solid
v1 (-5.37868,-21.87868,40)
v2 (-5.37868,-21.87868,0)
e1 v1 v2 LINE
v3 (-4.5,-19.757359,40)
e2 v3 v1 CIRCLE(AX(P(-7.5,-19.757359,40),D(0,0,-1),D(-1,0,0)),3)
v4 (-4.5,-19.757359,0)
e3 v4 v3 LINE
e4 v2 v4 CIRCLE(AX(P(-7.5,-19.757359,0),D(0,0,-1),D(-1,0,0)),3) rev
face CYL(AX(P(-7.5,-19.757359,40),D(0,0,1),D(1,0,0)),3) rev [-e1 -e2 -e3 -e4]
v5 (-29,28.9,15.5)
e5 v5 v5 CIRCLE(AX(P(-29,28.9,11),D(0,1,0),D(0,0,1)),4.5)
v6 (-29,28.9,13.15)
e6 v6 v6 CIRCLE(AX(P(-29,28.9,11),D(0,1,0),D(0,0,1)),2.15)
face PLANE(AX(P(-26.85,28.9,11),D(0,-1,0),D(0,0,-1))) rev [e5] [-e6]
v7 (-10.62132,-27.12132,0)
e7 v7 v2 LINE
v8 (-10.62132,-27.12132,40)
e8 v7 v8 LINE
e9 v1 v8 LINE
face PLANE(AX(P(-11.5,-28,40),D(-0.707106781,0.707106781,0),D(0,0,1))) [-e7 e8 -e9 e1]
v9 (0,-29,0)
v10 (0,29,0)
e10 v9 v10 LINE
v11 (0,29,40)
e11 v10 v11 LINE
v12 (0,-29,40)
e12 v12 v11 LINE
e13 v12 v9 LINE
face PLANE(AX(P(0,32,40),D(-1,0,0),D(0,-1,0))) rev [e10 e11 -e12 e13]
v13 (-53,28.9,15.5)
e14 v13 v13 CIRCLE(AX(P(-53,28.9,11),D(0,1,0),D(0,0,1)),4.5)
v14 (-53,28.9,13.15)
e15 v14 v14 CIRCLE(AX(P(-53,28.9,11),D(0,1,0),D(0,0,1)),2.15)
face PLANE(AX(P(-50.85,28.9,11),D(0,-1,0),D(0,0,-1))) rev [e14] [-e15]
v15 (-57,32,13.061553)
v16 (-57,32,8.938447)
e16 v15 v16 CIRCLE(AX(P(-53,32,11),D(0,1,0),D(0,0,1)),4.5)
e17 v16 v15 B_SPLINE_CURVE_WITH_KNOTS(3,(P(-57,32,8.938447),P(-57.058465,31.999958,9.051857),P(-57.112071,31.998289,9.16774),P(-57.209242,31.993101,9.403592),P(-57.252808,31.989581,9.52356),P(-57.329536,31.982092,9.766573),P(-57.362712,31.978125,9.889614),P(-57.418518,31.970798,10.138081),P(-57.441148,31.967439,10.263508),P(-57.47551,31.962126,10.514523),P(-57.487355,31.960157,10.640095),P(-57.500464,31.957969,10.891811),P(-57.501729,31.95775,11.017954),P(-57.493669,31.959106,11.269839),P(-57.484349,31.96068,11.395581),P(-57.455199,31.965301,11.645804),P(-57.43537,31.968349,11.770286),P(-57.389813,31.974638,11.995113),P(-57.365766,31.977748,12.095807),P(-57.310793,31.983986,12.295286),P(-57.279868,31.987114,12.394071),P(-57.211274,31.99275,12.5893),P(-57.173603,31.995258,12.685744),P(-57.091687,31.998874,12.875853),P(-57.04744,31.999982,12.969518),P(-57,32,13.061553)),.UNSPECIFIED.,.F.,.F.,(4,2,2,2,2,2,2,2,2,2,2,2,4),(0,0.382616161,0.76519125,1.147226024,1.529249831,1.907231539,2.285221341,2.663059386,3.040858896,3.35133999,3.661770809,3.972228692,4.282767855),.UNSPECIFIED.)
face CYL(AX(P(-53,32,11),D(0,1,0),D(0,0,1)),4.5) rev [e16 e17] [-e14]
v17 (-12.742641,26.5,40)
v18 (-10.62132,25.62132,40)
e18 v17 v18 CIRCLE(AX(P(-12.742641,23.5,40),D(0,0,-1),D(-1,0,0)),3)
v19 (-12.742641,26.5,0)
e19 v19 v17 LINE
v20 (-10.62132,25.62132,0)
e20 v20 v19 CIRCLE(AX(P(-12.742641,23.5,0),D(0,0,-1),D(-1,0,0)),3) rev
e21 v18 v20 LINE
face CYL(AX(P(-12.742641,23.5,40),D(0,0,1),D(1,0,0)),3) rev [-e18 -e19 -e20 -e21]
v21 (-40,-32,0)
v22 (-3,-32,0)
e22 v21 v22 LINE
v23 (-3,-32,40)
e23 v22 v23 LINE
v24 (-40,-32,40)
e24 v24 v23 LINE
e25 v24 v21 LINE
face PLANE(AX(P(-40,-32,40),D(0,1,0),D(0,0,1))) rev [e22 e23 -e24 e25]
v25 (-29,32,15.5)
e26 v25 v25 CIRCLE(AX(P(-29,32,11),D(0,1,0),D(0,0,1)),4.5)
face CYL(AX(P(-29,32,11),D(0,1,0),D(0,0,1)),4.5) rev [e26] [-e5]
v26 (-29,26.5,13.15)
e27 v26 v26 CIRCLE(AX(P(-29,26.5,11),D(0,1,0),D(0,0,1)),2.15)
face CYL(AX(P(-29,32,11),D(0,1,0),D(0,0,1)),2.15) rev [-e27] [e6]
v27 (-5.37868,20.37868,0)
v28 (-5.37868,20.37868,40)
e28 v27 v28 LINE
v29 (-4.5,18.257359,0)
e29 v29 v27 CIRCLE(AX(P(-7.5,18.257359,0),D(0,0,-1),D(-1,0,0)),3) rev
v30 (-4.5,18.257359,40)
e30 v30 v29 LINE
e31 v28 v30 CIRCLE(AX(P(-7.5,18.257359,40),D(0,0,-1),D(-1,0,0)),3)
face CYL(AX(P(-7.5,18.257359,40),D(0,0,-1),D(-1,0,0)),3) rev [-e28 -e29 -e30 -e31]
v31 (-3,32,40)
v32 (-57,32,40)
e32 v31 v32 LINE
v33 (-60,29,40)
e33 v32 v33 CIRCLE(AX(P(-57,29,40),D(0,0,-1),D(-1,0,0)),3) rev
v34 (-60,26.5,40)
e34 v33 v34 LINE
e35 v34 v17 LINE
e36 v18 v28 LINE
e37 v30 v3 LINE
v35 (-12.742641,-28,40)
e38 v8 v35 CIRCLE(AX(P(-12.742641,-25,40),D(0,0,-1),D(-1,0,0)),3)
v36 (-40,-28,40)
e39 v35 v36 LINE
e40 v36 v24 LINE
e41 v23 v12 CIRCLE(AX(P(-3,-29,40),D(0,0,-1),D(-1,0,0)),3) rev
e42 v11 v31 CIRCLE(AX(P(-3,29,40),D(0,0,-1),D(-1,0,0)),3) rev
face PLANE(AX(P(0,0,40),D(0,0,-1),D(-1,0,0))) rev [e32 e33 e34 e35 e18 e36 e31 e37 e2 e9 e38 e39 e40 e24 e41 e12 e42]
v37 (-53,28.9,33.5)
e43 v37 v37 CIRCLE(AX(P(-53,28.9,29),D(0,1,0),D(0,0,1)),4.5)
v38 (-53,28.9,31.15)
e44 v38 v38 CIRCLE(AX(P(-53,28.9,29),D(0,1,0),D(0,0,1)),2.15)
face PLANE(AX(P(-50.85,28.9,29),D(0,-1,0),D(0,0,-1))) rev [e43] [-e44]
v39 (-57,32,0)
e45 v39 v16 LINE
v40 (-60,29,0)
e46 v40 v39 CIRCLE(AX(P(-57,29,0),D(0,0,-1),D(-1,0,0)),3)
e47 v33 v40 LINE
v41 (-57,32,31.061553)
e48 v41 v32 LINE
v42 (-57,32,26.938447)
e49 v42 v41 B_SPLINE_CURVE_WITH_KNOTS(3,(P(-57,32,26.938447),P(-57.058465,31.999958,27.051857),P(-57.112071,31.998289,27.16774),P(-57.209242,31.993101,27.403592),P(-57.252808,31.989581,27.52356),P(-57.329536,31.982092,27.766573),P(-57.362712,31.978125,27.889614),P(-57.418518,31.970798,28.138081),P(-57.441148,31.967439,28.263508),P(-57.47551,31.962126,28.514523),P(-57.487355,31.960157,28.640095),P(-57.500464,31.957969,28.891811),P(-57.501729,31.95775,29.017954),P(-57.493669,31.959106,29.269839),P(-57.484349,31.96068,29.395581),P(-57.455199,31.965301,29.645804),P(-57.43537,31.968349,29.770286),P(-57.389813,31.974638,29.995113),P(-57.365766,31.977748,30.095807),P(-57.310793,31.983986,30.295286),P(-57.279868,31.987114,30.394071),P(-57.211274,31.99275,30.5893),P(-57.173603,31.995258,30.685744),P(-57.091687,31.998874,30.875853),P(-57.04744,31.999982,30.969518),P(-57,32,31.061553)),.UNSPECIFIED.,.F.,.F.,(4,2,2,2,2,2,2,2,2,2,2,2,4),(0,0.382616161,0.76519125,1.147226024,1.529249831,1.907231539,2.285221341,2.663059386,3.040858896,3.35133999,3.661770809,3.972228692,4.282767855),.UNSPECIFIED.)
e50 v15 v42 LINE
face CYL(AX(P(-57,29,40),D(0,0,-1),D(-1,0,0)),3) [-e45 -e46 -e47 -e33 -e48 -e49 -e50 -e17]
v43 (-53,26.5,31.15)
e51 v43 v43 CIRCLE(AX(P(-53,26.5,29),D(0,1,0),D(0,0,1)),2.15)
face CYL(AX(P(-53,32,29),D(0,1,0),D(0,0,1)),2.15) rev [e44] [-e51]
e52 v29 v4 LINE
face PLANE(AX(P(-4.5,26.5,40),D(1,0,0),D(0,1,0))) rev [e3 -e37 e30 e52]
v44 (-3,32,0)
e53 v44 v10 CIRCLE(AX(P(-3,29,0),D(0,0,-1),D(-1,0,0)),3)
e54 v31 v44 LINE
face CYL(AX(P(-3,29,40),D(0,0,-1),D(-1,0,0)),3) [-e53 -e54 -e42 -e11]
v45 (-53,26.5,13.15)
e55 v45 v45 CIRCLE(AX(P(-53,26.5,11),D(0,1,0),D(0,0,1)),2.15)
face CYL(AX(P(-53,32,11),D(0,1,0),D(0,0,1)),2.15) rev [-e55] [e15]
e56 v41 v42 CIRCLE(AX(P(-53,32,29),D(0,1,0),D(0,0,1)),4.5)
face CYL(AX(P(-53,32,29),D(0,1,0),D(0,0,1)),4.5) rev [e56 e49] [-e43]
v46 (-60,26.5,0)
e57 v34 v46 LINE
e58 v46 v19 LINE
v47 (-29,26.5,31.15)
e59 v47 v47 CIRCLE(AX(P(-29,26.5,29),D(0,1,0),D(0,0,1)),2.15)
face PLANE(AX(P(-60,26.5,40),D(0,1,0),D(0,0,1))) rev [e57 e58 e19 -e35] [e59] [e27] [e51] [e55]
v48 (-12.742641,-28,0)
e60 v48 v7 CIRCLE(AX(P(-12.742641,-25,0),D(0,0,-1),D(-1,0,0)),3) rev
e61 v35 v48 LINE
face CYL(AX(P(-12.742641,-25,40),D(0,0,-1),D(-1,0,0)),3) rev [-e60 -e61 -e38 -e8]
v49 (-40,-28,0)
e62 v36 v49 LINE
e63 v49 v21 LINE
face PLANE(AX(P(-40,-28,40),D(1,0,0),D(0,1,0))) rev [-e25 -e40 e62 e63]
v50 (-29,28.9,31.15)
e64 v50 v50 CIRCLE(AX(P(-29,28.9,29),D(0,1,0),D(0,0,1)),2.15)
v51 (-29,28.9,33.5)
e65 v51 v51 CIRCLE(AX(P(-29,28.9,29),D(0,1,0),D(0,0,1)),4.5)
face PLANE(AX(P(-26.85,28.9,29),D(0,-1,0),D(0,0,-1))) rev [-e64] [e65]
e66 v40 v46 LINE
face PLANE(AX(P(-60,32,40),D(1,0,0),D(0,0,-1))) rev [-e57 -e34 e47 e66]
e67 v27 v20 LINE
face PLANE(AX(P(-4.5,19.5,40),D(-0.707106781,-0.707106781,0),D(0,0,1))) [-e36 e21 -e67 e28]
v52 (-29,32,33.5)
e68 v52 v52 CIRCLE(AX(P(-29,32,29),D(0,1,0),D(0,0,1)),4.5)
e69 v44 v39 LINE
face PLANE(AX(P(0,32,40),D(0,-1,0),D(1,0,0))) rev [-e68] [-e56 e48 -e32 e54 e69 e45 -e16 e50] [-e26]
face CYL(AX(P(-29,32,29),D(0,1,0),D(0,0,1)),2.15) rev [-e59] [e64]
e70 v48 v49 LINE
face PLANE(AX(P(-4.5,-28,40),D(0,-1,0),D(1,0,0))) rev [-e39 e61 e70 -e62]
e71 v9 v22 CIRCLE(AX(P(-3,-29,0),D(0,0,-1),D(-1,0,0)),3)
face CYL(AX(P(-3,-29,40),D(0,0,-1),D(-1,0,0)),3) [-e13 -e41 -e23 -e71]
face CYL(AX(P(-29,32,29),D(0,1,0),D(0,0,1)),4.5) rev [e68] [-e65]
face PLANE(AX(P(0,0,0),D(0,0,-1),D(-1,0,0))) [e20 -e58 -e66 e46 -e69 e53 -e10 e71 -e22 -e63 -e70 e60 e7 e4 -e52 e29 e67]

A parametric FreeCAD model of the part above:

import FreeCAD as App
import Part
import Sketcher
from FreeCAD import Vector
Q = App.Units.Quantity


def edges_at(feature, points):
    """Names of the edges that pass closest to the given points."""
    edges = feature.Shape.Edges
    near = lambda p: min(range(len(edges)), key=lambda i: edges[i].distToShape(Part.Vertex(*p))[0])
    return sorted({f"Edge{near(p) + 1}" for p in points})

doc = App.newDocument("Part")
body = doc.addObject("PartDesign::Body", "Body")

# Sketch on XY plane
sketch1 = body.newObject("Sketcher::SketchObject", "Sketch")
sketch1.AttachmentSupport = (doc.getObject("XY_Plane"), [""])
sketch1.MapMode = "FlatFace"
sketch1.addGeometry(Part.LineSegment(Vector(0, -32, 0), Vector(0, 32, 0)), False)
sketch1.addGeometry(Part.LineSegment(Vector(0, 32, 0), Vector(-60, 32, 0)), False)
sketch1.addGeometry(Part.LineSegment(Vector(-60, 32, 0), Vector(-60, 26.5, 0)), False)
sketch1.addGeometry(Part.LineSegment(Vector(-60, 26.5, 0), Vector(-4.5, 26.5, 0)), False)
sketch1.addGeometry(Part.LineSegment(Vector(-4.5, 26.5, 0), Vector(-4.5, -28, 0)), False)
sketch1.addGeometry(Part.LineSegment(Vector(-4.5, -28, 0), Vector(-40, -28, 0)), False)
sketch1.addGeometry(Part.LineSegment(Vector(-40, -28, 0), Vector(-40, -32, 0)), False)
sketch1.addGeometry(Part.LineSegment(Vector(-40, -32, 0), Vector(0, -32, 0)), False)
sketch1.addConstraint(Sketcher.Constraint("Coincident", 0, 2, 1, 1))
sketch1.addConstraint(Sketcher.Constraint("Coincident", 1, 2, 2, 1))
sketch1.addConstraint(Sketcher.Constraint("Coincident", 2, 2, 3, 1))
sketch1.addConstraint(Sketcher.Constraint("Coincident", 3, 2, 4, 1))
sketch1.addConstraint(Sketcher.Constraint("Coincident", 4, 2, 5, 1))
sketch1.addConstraint(Sketcher.Constraint("Coincident", 5, 2, 6, 1))
sketch1.addConstraint(Sketcher.Constraint("Coincident", 6, 2, 7, 1))
sketch1.addConstraint(Sketcher.Constraint("Coincident", 7, 2, 0, 1))
sketch1.addConstraint(Sketcher.Constraint("Vertical", 0))
sketch1.addConstraint(Sketcher.Constraint("Horizontal", 1))
sketch1.addConstraint(Sketcher.Constraint("Vertical", 2))
sketch1.addConstraint(Sketcher.Constraint("Horizontal", 3))
sketch1.addConstraint(Sketcher.Constraint("Vertical", 4))
sketch1.addConstraint(Sketcher.Constraint("Horizontal", 5))
sketch1.addConstraint(Sketcher.Constraint("Vertical", 6))
sketch1.addConstraint(Sketcher.Constraint("Horizontal", 7))
sketch1.addConstraint(Sketcher.Constraint("Symmetric", 0, 2, 7, 2, -1, 1))
sketch1.addConstraint(Sketcher.Constraint("DistanceX", 1, 2, 1, 1, Q("60 mm")))
sketch1.addConstraint(Sketcher.Constraint("DistanceX", 7, 1, 7, 2, Q("40 mm")))
sketch1.addConstraint(Sketcher.Constraint("DistanceY", 0, 1, 0, 2, Q("64 mm")))
sketch1.addConstraint(Sketcher.Constraint("DistanceY", 6, 2, 6, 1, Q("4 mm")))
sketch1.addConstraint(Sketcher.Constraint("DistanceX", 3, 1, 3, 2, Q("55.5 mm")))
sketch1.addConstraint(Sketcher.Constraint("DistanceY", 2, 2, 2, 1, Q("5.5 mm")))
pad1 = body.newObject("PartDesign::Pad", "Pad")
pad1.Profile = sketch1
pad1.Length = 40
doc.recompute()

chamfer = body.newObject("PartDesign::Chamfer", "Chamfer")
chamfer.Base = (pad1, edges_at(pad1, [(-4.5, -28, 20), (-4.5, 26.5, 20)]))
chamfer.Size = 7
doc.recompute()

fillet = body.newObject("PartDesign::Fillet", "Fillet")
fillet.Base = (chamfer, edges_at(chamfer, [
    (-60, 32, 20),
    (0, 32, 20),
    (0, -32, 20),
    (-11.5, -28, 20),
    (-4.5, 19.5, 20),
    (-4.5, -21, 20),
    (-11.5, 26.5, 20),
]))
fillet.Radius = 3

# Sketch on XZ plane
sketch2 = body.newObject("Sketcher::SketchObject", "Sketch001")
sketch2.AttachmentSupport = (doc.getObject("XZ_Plane"), [""])
sketch2.MapMode = "FlatFace"
sketch2.AttachmentOffset = App.Placement(Vector(0, 0, -32), App.Rotation())
sketch2.addGeometry(Part.Circle(Vector(-53, 11, 0), Vector(0, 0, 1), 2.15), False)
sketch2.addGeometry(Part.Circle(Vector(-53, 29, 0), Vector(0, 0, 1), 2.15), False)
sketch2.addGeometry(Part.Circle(Vector(-29, 29, 0), Vector(0, 0, 1), 2.15), False)
sketch2.addGeometry(Part.Circle(Vector(-29, 11, 0), Vector(0, 0, 1), 2.15), False)
sketch2.addConstraint(Sketcher.Constraint("Equal", 0, 1))
sketch2.addConstraint(Sketcher.Constraint("Equal", 1, 2))
sketch2.addConstraint(Sketcher.Constraint("Equal", 2, 3))
sketch2.addConstraint(Sketcher.Constraint("Horizontal", 1, 3, 2, 3))
sketch2.addConstraint(Sketcher.Constraint("Horizontal", 0, 3, 3, 3))
sketch2.addConstraint(Sketcher.Constraint("Vertical", 0, 3, 1, 3))
sketch2.addConstraint(Sketcher.Constraint("Vertical", 2, 3, 3, 3))
sketch2.addConstraint(Sketcher.Constraint("Diameter", 0, Q("4.3 mm")))
sketch2.addConstraint(Sketcher.Constraint("DistanceX", 0, 3, -1, 1, Q("53 mm")))
sketch2.addConstraint(Sketcher.Constraint("DistanceY", -1, 1, 0, 3, Q("11 mm")))
sketch2.addConstraint(Sketcher.Constraint("DistanceY", -1, 1, 1, 3, Q("29 mm")))
sketch2.addConstraint(Sketcher.Constraint("DistanceX", 2, 3, -1, 1, Q("29 mm")))
doc.recompute()
hole = body.newObject("PartDesign::Hole", "Hole")
hole.Profile = sketch2
hole.ThreadType = "None"
hole.Diameter = 4.3
hole.DepthType = "Dimension"
hole.Depth = 5.5
hole.DrillPoint = "Flat"
hole.HoleCutType = "Counterbore"
hole.HoleCutDiameter = 9
hole.HoleCutDepth = 3.1
hole.Reversed = True

doc.recompute()
